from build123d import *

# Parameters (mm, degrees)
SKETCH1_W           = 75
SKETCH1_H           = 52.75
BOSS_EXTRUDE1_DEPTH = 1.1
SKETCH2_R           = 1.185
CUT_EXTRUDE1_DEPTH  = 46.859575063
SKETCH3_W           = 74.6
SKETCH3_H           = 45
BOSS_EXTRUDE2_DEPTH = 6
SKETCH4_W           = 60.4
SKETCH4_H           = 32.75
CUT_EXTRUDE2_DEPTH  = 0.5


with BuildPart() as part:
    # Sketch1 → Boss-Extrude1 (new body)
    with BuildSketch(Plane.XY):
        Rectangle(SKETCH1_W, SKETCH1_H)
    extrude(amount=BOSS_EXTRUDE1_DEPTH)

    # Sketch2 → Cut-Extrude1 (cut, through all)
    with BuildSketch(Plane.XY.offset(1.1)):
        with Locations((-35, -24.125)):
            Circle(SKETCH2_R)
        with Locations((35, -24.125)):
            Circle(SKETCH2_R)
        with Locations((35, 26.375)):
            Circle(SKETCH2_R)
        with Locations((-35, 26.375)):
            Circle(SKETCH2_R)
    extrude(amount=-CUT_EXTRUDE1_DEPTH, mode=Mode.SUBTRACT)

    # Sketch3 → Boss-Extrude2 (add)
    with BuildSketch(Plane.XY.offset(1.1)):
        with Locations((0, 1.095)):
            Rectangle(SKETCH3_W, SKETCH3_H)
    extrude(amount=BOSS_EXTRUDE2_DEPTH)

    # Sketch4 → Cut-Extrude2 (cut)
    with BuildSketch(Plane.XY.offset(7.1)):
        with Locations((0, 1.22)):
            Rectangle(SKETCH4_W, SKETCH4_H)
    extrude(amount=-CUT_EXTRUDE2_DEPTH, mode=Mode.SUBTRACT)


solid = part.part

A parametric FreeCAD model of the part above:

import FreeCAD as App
import Part
import Sketcher
from FreeCAD import Vector
Q = App.Units.Quantity


def add_polygon(sketch, points):
    """Adds a closed chain of lines whose ends are joined by coincident constraints."""
    first, n = sketch.GeometryCount, len(points)
    for a, b in zip(points, points[1:] + points[:1]):
        sketch.addGeometry(Part.LineSegment(App.Vector(*a, 0), App.Vector(*b, 0)), False)
    for i in range(n):
        sketch.addConstraint(Sketcher.Constraint("Coincident", first + i, 2, first + (i + 1) % n, 1))

doc = App.newDocument("Part")
params = doc.addObject("Spreadsheet::Sheet", "Params")
for row, (alias, value) in enumerate([
    ("sketch1_width", "75 mm"),
    ("sketch1_height", "52.75 mm"),
    ("pad1_length", "1.1 mm"),
    ("sketch2_diameter", "2.37 mm"),
    ("sketch3_height", "45 mm"),
    ("sketch3_width", "74.6 mm"),
    ("pad2_length", "6 mm"),
    ("sketch4_width", "60.4 mm"),
    ("sketch4_height", "32.75 mm"),
    ("pocket2_length", "0.5 mm"),
], start=1):
    params.set(f"A{row}", alias)
    params.set(f"B{row}", "=" + value)
    params.setAlias(f"B{row}", alias)

body = doc.addObject("PartDesign::Body", "Body")

sketch1 = body.newObject("Sketcher::SketchObject", "Sketch")
sketch1.AttachmentSupport = (doc.getObject("XY_Plane"), [""])
sketch1.MapMode = "FlatFace"
add_polygon(sketch1, [(-37.5, 26.375), (-37.5, -26.375), (37.5, -26.375), (37.5, 26.375)])
sketch1.addConstraint([
    Sketcher.Constraint("Vertical", 0),
    Sketcher.Constraint("Horizontal", 1),
    Sketcher.Constraint("Vertical", 2),
    Sketcher.Constraint("Horizontal", 3),
    Sketcher.Constraint("Symmetric", 0, 2, 2, 2, -1, 1),
    Sketcher.Constraint("DistanceX", 1, 1, 1, 2, Q("75 mm")),
    Sketcher.Constraint("DistanceY", 0, 2, 0, 1, Q("52.75 mm")),
])
sketch1.setExpression("Constraints[9]", "Params.sketch1_width")
sketch1.setExpression("Constraints[10]", "Params.sketch1_height")
pad1 = body.newObject("PartDesign::Pad", "Pad")
pad1.Profile = sketch1
pad1.setExpression("Length", "Params.pad1_length")

sketch2 = body.newObject("Sketcher::SketchObject", "Sketch001")
sketch2.AttachmentSupport = (doc.getObject("XY_Plane"), [""])
sketch2.MapMode = "FlatFace"
sketch2.AttachmentOffset = App.Placement(Vector(0, 0, 1.1), App.Rotation())
sketch2.addGeometry([
    Part.Circle(Vector(-35, -24.125, 0), Vector(0, 0, 1), 1.185),
    Part.Circle(Vector(35, -24.125, 0), Vector(0, 0, 1), 1.185),
    Part.Circle(Vector(35, 26.375, 0), Vector(0, 0, 1), 1.185),
    Part.Circle(Vector(-35, 26.375, 0), Vector(0, 0, 1), 1.185),
], False)
sketch2.addConstraint([
    Sketcher.Constraint("Equal", 0, 1),
    Sketcher.Constraint("Equal", 1, 2),
    Sketcher.Constraint("Equal", 2, 3),
    Sketcher.Constraint("Symmetric", 0, 3, 1, 3, -2),
    Sketcher.Constraint("Symmetric", 2, 3, 3, 3, -2),
    Sketcher.Constraint("Vertical", 1, 3, 2, 3),
    Sketcher.Constraint("Diameter", 0, Q("2.37 mm")),
    Sketcher.Constraint("DistanceX", 0, 3, -1, 1, Q("35 mm")),
    Sketcher.Constraint("DistanceY", 1, 3, 2, 3, Q("50.5 mm")),
    Sketcher.Constraint("DistanceY", 0, 3, -1, 1, Q("24.125 mm")),
])
sketch2.setExpression("Constraints[6]", "Params.sketch2_diameter")
pocket1 = body.newObject("PartDesign::Pocket", "Pocket")
pocket1.Profile = sketch2
pocket1.Type = "ThroughAll"

sketch3 = body.newObject("Sketcher::SketchObject", "Sketch002")
sketch3.AttachmentSupport = (doc.getObject("XY_Plane"), [""])
sketch3.MapMode = "FlatFace"
sketch3.AttachmentOffset = App.Placement(Vector(0, 0, 1.1), App.Rotation())
add_polygon(sketch3, [(-37.3, 23.595), (-37.3, -21.405), (37.3, -21.405), (37.3, 23.595)])
sketch3.addConstraint([
    Sketcher.Constraint("Vertical", 0),
    Sketcher.Constraint("Horizontal", 1),
    Sketcher.Constraint("Vertical", 2),
    Sketcher.Constraint("Horizontal", 3),
    Sketcher.Constraint("DistanceY", 0, 2, 0, 1, Q("45 mm")),
    Sketcher.Constraint("DistanceX", 1, 1, 1, 2, Q("74.6 mm")),
    Sketcher.Constraint("DistanceX", 0, 2, -1, 1, Q("37.3 mm")),
    Sketcher.Constraint("DistanceY", 0, 2, -1, 1, Q("21.405 mm")),
])
sketch3.setExpression("Constraints[8]", "Params.sketch3_height")
sketch3.setExpression("Constraints[9]", "Params.sketch3_width")
pad2 = body.newObject("PartDesign::Pad", "Pad001")
pad2.Profile = sketch3
pad2.setExpression("Length", "Params.pad2_length")

sketch4 = body.newObject("Sketcher::SketchObject", "Sketch003")
sketch4.AttachmentSupport = (doc.getObject("XY_Plane"), [""])
sketch4.MapMode = "FlatFace"
sketch4.AttachmentOffset = App.Placement(Vector(0, 0, 7.1), App.Rotation())
add_polygon(sketch4, [(-30.2, 17.595), (-30.2, -15.155), (30.2, -15.155), (30.2, 17.595)])
sketch4.addConstraint([
    Sketcher.Constraint("Vertical", 0),
    Sketcher.Constraint("Horizontal", 1),
    Sketcher.Constraint("Vertical", 2),
    Sketcher.Constraint("Horizontal", 3),
    Sketcher.Constraint("DistanceX", 1, 1, 1, 2, Q("60.4 mm")),
    Sketcher.Constraint("DistanceY", 0, 2, 0, 1, Q("32.75 mm")),
    Sketcher.Constraint("DistanceX", 0, 2, -1, 1, Q("30.2 mm")),
    Sketcher.Constraint("DistanceY", 0, 2, -1, 1, Q("15.155 mm")),
])
sketch4.setExpression("Constraints[8]", "Params.sketch4_width")
sketch4.setExpression("Constraints[9]", "Params.sketch4_height")
pocket2 = body.newObject("PartDesign::Pocket", "Pocket001")
pocket2.Profile = sketch4
pocket2.setExpression("Length", "Params.pocket2_length")

doc.recompute()
